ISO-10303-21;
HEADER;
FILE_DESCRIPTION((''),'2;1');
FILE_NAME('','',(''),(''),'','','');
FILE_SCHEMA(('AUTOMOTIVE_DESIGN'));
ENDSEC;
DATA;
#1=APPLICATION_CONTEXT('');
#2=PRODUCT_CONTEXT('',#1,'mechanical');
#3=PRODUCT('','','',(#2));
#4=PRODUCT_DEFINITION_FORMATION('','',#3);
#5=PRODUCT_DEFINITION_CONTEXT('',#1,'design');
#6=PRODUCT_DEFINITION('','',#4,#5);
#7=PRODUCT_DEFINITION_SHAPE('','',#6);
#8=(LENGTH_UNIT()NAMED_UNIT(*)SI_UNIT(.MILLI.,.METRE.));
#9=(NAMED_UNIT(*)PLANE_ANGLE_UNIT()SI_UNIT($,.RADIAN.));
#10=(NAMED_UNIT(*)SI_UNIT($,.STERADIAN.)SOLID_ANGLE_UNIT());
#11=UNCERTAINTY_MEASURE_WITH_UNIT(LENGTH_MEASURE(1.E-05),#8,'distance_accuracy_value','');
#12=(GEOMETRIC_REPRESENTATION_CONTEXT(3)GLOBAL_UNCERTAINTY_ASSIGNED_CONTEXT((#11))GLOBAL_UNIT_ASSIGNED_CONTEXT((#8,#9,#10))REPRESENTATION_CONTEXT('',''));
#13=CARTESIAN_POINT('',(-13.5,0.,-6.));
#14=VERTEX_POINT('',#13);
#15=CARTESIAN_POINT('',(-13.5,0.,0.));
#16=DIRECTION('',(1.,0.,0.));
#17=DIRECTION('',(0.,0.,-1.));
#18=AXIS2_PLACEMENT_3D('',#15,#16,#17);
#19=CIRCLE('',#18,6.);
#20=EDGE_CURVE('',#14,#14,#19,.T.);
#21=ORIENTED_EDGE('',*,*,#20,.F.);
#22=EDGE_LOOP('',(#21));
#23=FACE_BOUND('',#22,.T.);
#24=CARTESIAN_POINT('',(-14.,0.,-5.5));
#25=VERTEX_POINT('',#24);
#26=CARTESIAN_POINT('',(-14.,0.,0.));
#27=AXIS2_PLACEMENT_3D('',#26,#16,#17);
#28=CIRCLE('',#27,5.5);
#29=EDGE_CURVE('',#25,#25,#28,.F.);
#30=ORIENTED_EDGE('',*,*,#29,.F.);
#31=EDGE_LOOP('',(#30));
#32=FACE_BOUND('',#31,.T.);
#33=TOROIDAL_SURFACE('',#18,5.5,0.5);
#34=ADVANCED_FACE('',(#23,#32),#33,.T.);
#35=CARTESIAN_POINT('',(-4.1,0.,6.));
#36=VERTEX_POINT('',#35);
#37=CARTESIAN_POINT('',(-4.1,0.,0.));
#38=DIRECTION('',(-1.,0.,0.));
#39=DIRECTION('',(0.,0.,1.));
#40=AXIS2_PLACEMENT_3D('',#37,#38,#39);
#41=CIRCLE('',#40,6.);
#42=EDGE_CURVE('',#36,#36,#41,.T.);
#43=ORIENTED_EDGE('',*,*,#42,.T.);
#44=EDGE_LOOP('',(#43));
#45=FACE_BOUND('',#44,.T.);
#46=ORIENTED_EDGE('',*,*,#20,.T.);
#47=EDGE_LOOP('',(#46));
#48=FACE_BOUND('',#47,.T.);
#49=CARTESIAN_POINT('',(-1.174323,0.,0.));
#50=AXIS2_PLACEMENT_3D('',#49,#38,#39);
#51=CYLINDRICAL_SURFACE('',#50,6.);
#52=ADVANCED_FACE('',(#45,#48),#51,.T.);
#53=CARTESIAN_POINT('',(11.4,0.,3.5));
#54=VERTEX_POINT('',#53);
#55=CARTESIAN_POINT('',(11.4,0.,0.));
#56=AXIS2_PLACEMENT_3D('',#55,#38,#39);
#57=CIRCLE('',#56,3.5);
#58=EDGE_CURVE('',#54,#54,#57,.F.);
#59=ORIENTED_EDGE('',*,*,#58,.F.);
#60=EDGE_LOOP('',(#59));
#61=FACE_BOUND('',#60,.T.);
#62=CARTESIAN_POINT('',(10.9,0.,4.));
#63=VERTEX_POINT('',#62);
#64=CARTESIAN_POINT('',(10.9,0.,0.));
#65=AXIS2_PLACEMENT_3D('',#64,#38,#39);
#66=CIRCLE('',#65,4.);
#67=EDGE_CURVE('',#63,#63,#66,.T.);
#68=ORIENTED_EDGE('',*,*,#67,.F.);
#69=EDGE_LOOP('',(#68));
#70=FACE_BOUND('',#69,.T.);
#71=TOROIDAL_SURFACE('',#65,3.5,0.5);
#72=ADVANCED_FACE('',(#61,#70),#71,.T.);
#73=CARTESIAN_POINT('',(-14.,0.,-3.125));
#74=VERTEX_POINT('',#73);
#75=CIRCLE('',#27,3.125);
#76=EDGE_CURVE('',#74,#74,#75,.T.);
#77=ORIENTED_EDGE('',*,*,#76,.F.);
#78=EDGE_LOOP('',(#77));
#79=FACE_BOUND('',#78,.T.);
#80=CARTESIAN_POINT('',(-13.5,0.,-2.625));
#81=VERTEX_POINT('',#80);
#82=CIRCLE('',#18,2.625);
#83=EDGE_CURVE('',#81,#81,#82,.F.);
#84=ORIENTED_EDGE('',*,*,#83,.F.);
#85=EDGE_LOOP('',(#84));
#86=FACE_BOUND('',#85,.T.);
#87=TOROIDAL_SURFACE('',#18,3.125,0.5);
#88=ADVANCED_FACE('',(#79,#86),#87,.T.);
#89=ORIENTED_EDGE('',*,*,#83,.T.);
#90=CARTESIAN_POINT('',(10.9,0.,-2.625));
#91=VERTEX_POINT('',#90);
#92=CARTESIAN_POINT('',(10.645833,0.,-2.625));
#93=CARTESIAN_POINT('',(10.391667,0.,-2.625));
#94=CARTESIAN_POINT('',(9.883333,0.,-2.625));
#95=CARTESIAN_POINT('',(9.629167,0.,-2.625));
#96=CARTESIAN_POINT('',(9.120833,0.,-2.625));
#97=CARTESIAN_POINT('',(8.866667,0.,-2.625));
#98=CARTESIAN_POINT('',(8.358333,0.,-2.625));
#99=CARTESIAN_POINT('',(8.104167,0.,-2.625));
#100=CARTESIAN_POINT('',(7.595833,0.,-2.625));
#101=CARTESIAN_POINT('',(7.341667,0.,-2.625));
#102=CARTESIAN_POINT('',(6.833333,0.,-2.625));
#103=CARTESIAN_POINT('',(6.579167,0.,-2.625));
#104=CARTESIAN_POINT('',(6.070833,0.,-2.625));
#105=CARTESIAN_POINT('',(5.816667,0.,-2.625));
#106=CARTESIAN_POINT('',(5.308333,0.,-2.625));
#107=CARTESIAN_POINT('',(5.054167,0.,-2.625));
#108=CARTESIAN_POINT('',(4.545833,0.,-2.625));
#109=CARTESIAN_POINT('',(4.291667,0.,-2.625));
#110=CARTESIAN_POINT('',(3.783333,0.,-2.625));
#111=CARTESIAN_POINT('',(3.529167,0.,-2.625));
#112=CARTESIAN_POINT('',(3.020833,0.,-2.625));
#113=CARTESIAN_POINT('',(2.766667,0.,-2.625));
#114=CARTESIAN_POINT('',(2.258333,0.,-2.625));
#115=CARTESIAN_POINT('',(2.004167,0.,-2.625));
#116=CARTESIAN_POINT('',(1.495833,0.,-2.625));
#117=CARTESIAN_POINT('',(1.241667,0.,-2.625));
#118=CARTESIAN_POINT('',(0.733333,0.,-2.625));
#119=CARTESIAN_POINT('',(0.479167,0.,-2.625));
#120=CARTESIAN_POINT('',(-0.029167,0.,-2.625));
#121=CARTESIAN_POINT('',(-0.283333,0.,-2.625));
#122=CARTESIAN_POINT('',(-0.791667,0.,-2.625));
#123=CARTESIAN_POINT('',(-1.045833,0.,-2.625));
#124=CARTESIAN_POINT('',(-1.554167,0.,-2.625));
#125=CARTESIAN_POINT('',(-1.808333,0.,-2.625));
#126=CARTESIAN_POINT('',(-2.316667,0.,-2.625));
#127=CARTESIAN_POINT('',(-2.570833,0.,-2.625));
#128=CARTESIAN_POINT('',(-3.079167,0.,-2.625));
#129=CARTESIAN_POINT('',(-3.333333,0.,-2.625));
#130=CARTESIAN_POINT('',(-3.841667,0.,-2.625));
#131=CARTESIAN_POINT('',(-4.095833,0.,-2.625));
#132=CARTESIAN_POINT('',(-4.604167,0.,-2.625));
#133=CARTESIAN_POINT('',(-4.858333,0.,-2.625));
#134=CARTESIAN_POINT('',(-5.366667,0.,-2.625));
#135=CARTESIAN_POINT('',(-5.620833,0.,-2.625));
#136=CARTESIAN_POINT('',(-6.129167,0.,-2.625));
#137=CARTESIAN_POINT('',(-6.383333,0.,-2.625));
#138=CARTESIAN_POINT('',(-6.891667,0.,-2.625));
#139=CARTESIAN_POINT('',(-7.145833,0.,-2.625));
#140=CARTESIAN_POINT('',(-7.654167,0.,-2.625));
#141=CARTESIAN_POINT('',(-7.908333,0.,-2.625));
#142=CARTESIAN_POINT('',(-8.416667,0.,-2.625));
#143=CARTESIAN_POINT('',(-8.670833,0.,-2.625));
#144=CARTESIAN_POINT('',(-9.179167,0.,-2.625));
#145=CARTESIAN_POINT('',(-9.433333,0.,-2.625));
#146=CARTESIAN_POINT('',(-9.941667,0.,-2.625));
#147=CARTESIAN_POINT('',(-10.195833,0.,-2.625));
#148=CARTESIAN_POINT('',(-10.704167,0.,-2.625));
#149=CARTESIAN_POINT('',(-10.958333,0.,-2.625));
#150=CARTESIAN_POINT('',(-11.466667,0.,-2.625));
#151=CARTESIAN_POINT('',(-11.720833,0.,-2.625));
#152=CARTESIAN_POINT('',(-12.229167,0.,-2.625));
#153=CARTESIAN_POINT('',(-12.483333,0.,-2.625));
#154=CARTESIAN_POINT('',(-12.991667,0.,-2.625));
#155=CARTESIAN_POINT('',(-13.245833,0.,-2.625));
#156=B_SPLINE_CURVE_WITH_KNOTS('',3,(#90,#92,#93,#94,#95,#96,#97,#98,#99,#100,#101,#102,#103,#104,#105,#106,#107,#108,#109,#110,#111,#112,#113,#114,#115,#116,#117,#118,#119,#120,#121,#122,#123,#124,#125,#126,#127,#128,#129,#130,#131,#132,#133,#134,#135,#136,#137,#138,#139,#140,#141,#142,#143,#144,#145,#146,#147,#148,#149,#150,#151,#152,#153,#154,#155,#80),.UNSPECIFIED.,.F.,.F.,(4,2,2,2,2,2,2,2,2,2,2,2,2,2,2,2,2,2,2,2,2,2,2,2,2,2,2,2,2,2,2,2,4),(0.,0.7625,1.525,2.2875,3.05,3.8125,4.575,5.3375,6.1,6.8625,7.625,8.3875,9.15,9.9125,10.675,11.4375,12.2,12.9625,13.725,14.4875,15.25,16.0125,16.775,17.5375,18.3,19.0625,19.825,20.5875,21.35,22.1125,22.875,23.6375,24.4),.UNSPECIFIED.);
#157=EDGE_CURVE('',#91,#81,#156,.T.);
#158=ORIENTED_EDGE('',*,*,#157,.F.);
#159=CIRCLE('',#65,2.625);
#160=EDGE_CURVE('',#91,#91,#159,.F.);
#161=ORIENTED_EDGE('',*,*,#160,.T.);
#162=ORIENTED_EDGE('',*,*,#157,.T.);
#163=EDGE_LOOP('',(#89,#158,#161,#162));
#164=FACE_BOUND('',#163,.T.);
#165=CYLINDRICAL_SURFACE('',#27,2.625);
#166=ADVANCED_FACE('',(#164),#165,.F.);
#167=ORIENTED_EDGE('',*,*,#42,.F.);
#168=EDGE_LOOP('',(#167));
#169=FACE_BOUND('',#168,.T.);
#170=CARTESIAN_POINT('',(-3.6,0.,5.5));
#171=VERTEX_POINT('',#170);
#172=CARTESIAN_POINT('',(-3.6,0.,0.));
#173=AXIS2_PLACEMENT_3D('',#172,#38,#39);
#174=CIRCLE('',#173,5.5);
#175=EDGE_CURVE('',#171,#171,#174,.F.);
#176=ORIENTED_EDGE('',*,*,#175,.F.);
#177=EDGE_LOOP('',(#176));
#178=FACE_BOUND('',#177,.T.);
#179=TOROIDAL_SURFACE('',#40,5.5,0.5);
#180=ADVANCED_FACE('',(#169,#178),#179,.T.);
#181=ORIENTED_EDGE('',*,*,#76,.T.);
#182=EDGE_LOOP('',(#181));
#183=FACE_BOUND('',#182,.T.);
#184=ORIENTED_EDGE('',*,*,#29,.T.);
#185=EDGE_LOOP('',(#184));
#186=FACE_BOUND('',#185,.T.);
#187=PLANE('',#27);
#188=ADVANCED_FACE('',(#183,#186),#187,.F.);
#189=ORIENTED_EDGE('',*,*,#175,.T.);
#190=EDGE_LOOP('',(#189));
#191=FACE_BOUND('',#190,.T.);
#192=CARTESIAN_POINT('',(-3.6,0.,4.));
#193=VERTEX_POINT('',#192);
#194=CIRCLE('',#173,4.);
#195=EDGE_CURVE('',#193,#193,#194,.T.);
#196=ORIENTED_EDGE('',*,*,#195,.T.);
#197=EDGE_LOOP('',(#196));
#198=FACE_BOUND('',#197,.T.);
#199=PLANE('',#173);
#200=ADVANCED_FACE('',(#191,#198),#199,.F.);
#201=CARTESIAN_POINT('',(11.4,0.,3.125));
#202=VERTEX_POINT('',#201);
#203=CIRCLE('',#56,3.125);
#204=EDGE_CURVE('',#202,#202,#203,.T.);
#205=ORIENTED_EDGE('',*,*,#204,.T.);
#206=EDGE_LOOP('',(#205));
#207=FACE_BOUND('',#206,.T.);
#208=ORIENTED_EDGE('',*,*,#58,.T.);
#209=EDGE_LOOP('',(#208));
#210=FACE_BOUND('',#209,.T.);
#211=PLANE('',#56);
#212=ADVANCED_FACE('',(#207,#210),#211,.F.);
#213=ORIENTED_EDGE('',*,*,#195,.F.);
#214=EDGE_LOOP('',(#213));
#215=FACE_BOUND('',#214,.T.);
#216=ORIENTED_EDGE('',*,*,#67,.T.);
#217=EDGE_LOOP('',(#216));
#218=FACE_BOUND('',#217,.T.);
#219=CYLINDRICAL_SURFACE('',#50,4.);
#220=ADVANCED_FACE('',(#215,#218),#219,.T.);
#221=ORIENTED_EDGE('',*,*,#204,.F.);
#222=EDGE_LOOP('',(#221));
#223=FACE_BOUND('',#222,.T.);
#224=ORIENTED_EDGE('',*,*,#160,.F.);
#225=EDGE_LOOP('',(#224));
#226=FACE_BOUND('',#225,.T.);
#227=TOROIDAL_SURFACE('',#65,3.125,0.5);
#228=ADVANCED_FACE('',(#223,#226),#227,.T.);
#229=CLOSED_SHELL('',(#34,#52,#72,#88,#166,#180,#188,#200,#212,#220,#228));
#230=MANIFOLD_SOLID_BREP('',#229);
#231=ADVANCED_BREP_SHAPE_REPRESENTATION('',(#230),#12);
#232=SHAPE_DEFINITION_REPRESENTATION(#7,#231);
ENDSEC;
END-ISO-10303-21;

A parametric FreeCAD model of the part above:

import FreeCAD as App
import Part
import Sketcher

V = App.Vector
Q = App.Units.Quantity


def edges_at(feature, points):
    """Names of the edges that pass closest to the given points."""
    edges = feature.Shape.Edges
    near = lambda p: min(range(len(edges)), key=lambda i: edges[i].distToShape(Part.Vertex(*p))[0])
    return sorted({f"Edge{near(p) + 1}" for p in points})


def add_polygon(sketch, points):
    """Adds a closed chain of lines whose ends are joined by coincident constraints."""
    first, n = sketch.GeometryCount, len(points)
    for a, b in zip(points, points[1:] + points[:1]):
        sketch.addGeometry(Part.LineSegment(App.Vector(*a, 0), App.Vector(*b, 0)), False)
    for i in range(n):
        sketch.addConstraint(Sketcher.Constraint("Coincident", first + i, 2, first + (i + 1) % n, 1))

doc = App.newDocument("Part")
params = doc.addObject("Spreadsheet::Sheet", "Params")
for row, (alias, value) in enumerate([
    ("sketch1_width", "15 mm"),
    ("sketch1_height", "4 mm"),
    ("sketch1_height2", "2 mm"),
    ("sketch1_width2", "25.4 mm"),
    ("revolution_angle", "360 deg"),
    ("sketch2_diameter", "5.25 mm"),
    ("fillet_radius", "0.5 mm"),
], start=1):
    params.set(f"A{row}", alias)
    params.set(f"B{row}", "=" + value)
    params.setAlias(f"B{row}", alias)

body = doc.addObject("PartDesign::Body", "Body")

# Sketch on XY plane
sketch1 = body.newObject("Sketcher::SketchObject", "Sketch")
sketch1.AttachmentSupport = (doc.getObject("XY_Plane"), [""])
sketch1.MapMode = "FlatFace"
add_polygon(sketch1, [(-14, 0), (11.4, 0), (11.4, 4), (-3.6, 4), (-3.6, 6), (-14, 6)])  # lines 0-5
sketch1.addConstraint(Sketcher.Constraint("Horizontal", 0))
sketch1.addConstraint(Sketcher.Constraint("Vertical", 1))
sketch1.addConstraint(Sketcher.Constraint("Horizontal", 2))
sketch1.addConstraint(Sketcher.Constraint("Vertical", 3))
sketch1.addConstraint(Sketcher.Constraint("Horizontal", 4))
sketch1.addConstraint(Sketcher.Constraint("Vertical", 5))
sketch1.addConstraint(Sketcher.Constraint("PointOnObject", 0, 2, -1))
sketch1.addConstraint(Sketcher.Constraint("DistanceX", 2, 2, 2, 1, Q("15 mm")))
sketch1.addConstraint(Sketcher.Constraint("DistanceY", 1, 1, 1, 2, Q("4 mm")))
sketch1.addConstraint(Sketcher.Constraint("DistanceY", 3, 1, 3, 2, Q("2 mm")))
sketch1.addConstraint(Sketcher.Constraint("DistanceX", 0, 1, 0, 2, Q("25.4 mm")))
sketch1.addConstraint(Sketcher.Constraint("DistanceX", 4, 2, -1, 1, Q("14 mm")))
sketch1.setExpression("Constraints[13]", "Params.sketch1_width")
sketch1.setExpression("Constraints[14]", "Params.sketch1_height")
sketch1.setExpression("Constraints[15]", "Params.sketch1_height2")
sketch1.setExpression("Constraints[16]", "Params.sketch1_width2")
revolution = body.newObject("PartDesign::Revolution", "Revolution")
revolution.Profile = sketch1
revolution.ReferenceAxis = (sketch1, ["H_Axis"])
revolution.setExpression("Angle", "Params.revolution_angle")

# Sketch on YZ plane
sketch2 = body.newObject("Sketcher::SketchObject", "Sketch001")
sketch2.AttachmentSupport = (doc.getObject("YZ_Plane"), [""])
sketch2.MapMode = "FlatFace"
sketch2.addGeometry(Part.Circle(V(0, 0, 0), V(0, 0, 1), 2.6), False)
sketch2.addConstraint(Sketcher.Constraint("Coincident", 0, 3, -1, 1))
sketch2.addConstraint(Sketcher.Constraint("Diameter", 0, Q("5.25 mm")))
sketch2.setExpression("Constraints[1]", "Params.sketch2_diameter")
pocket1 = body.newObject("PartDesign::Pocket", "Pocket")
pocket1.Profile = sketch2
pocket1.Type = "ThroughAll"
pocket1.Midplane = True
doc.recompute()

fillet = body.newObject("PartDesign::Fillet", "Fillet")
fillet.Base = (pocket1, edges_at(pocket1, [
    (-14, 0, 2.625),
    (11.4, 0, 2.625),
    (-14, 0, -6),
    (-3.6, 0, -6),
    (11.4, 0, -4),
]))
fillet.setExpression("Radius", "Params.fillet_radius")

doc.recompute()
